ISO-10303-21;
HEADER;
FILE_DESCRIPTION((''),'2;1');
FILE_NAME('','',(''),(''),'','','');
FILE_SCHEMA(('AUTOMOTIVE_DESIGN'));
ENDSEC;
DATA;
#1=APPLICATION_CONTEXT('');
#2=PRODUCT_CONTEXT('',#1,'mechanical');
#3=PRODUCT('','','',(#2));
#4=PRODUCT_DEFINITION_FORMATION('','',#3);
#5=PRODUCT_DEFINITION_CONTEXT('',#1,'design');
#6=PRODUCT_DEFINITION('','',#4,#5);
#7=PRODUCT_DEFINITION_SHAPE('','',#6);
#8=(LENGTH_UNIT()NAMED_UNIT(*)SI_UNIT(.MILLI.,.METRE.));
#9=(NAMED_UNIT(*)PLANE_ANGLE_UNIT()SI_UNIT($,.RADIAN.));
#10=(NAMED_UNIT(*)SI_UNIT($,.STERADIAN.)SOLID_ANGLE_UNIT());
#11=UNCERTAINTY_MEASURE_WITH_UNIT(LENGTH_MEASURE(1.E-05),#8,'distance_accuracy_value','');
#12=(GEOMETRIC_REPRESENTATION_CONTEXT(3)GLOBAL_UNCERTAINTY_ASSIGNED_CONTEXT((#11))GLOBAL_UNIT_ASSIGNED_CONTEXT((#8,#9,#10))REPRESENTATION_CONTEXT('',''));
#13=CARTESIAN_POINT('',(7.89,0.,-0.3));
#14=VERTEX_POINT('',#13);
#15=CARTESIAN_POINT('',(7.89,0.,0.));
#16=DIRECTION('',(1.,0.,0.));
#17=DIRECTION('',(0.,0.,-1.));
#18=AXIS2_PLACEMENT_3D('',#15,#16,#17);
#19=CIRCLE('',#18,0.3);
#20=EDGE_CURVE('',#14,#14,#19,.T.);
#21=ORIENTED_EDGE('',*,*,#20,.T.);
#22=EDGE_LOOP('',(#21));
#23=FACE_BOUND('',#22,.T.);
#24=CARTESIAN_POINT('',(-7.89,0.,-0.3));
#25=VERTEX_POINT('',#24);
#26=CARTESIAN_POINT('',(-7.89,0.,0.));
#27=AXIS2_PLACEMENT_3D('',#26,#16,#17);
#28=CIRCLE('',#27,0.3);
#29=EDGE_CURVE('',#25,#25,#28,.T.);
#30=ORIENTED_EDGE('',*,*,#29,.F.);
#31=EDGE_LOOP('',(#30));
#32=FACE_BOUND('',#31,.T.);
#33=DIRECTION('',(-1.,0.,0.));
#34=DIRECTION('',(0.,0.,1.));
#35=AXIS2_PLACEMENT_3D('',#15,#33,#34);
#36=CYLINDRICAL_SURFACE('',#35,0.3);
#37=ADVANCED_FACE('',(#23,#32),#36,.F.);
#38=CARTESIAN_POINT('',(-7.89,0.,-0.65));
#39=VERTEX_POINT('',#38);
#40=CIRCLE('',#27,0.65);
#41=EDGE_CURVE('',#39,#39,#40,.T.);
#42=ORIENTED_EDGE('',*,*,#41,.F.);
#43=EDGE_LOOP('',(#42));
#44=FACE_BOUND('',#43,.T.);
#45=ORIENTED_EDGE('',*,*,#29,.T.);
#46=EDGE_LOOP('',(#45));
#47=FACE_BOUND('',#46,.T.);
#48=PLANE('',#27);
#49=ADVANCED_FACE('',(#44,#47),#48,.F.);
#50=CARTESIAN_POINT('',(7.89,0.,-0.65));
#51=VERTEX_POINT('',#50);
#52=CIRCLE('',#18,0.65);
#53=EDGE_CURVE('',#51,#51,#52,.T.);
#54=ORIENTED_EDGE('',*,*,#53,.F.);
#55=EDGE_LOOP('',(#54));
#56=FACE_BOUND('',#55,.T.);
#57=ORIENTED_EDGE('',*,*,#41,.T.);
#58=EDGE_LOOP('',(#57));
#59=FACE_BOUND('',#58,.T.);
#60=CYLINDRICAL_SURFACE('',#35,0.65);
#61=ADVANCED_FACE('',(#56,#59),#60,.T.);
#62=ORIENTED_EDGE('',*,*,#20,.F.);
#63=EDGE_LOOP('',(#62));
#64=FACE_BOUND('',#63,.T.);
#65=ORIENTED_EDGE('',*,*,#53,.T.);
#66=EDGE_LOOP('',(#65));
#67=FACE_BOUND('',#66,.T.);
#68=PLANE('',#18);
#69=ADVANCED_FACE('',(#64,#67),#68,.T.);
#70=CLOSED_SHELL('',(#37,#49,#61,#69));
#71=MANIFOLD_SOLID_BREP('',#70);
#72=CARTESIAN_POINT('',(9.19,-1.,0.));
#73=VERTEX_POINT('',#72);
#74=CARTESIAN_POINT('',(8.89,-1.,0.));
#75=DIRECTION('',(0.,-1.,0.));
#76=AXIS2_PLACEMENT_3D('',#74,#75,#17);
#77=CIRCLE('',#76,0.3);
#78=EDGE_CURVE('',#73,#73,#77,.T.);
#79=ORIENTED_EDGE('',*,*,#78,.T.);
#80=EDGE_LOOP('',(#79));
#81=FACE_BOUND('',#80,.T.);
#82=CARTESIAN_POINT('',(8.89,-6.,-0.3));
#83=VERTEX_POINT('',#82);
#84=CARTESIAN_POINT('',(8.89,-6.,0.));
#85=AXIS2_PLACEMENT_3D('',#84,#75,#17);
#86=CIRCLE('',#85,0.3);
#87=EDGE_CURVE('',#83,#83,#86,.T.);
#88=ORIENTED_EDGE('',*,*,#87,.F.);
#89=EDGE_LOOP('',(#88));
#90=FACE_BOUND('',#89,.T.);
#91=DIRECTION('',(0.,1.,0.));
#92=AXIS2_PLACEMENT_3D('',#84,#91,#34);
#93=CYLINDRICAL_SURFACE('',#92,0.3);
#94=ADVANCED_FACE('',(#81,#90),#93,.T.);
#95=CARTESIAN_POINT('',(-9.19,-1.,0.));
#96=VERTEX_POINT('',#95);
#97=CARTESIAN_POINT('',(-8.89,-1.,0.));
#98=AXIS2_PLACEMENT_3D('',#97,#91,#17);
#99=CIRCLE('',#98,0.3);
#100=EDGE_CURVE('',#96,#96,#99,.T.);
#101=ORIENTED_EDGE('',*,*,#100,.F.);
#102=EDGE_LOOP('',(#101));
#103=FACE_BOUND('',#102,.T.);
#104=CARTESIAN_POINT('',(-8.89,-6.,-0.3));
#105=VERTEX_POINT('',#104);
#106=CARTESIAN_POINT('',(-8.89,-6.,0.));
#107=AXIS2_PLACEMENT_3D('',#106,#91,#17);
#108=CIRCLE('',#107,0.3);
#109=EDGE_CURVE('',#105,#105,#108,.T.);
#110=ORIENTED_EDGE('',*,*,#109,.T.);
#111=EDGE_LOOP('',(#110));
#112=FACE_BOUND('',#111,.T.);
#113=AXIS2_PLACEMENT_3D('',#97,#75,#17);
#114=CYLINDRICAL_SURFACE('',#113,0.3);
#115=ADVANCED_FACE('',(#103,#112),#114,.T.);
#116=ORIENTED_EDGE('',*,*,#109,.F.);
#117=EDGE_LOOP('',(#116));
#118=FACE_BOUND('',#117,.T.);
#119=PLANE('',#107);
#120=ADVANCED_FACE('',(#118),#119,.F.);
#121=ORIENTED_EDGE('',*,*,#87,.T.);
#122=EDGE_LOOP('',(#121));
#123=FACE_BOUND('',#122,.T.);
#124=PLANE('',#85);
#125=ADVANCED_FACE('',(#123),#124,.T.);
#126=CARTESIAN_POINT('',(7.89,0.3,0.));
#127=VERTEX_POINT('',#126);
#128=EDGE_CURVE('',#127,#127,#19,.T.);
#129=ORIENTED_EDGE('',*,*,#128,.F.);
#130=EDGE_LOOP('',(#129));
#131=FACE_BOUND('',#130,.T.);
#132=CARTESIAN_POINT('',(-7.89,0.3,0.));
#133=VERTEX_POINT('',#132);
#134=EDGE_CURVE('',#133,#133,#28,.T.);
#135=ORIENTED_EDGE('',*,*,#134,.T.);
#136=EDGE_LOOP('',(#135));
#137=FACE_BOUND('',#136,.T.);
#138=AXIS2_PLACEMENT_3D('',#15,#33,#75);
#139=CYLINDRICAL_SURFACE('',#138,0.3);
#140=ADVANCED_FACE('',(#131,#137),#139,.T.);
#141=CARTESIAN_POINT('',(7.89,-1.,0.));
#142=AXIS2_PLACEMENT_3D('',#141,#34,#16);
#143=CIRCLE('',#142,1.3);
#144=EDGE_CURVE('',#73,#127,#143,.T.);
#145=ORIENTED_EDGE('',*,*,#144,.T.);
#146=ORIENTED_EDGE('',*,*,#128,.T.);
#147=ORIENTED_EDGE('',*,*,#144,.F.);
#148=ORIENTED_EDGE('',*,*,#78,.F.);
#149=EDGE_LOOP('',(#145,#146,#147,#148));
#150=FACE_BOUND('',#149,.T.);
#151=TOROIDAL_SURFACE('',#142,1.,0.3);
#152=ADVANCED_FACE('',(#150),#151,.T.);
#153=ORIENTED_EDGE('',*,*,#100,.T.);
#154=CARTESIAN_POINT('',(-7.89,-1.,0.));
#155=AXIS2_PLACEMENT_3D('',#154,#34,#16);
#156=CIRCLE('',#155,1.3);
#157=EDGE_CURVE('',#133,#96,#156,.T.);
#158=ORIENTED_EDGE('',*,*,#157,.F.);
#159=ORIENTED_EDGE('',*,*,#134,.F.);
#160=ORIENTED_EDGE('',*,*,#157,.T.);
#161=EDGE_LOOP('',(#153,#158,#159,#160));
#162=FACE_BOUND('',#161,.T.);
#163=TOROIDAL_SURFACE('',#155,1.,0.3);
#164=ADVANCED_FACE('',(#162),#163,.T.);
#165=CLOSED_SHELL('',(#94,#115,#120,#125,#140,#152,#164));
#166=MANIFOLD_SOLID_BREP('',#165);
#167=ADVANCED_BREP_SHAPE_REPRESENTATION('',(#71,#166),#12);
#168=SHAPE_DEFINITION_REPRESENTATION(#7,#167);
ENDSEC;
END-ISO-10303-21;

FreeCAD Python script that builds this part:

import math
import FreeCAD as App
import Part
import Sketcher

V = App.Vector

doc = App.newDocument("Part")
params = doc.addObject("Spreadsheet::Sheet", "Params")
for row, (alias, value) in enumerate([
    ("sketch1_diameter", "0.6 mm"),
    ("sketch2_radius", "1 mm"),
    ("sketch2_height", "5 mm"),
    ("sketch2_width", "15.78 mm"),
    ("sketch3_diameter", "1.3 mm"),
    ("sketch3_diameter2", "0.6 mm"),
    ("pad1_length", "7.89 mm"),
    ("pad1_length2", "7.89 mm"),
], start=1):
    params.set(f"A{row}", alias)
    params.set(f"B{row}", "=" + value)
    params.setAlias(f"B{row}", alias)

body = doc.addObject("PartDesign::Body", "Body")

# Sketch on YZ plane
sketch1 = body.newObject("Sketcher::SketchObject", "Sketch")
sketch1.AttachmentSupport = (doc.getObject("YZ_Plane"), [""])
sketch1.MapMode = "FlatFace"
sketch1.addGeometry(Part.Circle(V(0, 0, 0), V(0, 0, 1), 0.3), False)
sketch1.addConstraint(Sketcher.Constraint("Coincident", 0, 3, -1, 1))
sketch1.addConstraint(Sketcher.Constraint("Diameter", 0, 0.6))
sketch1.setExpression("Constraints[1]", "Params.sketch1_diameter")

# Sketch on XY plane
sketch2 = body.newObject("Sketcher::SketchObject", "Sketch001")
sketch2.AttachmentSupport = (doc.getObject("XY_Plane"), [""])
sketch2.MapMode = "FlatFace"
sketch2.addGeometry(Part.LineSegment(V(-8.9, -6, 0), V(-8.9, -1, 0)), False)
sketch2.addGeometry(Part.ArcOfCircle(Part.Circle(V(-7.9, -1, 0), V(0, 0, 1), 1), math.radians(90), math.radians(180)), False)
sketch2.addGeometry(Part.LineSegment(V(-7.9, 0, 0), V(7.9, 0, 0)), False)
sketch2.addGeometry(Part.ArcOfCircle(Part.Circle(V(7.9, -1, 0), V(0, 0, 1), 1), math.radians(0), math.radians(90)), False)
sketch2.addGeometry(Part.LineSegment(V(8.9, -1, 0), V(8.9, -6, 0)), False)
sketch2.addConstraint(Sketcher.Constraint("Tangent", 0, 2, 1, 2))
sketch2.addConstraint(Sketcher.Constraint("Tangent", 1, 1, 2, 1))
sketch2.addConstraint(Sketcher.Constraint("Tangent", 2, 2, 3, 2))
sketch2.addConstraint(Sketcher.Constraint("Tangent", 3, 1, 4, 1))
sketch2.addConstraint(Sketcher.Constraint("Vertical", 0))
sketch2.addConstraint(Sketcher.Constraint("Horizontal", 2))
sketch2.addConstraint(Sketcher.Constraint("Vertical", 4))
sketch2.addConstraint(Sketcher.Constraint("Equal", 1, 3))
sketch2.addConstraint(Sketcher.Constraint("Symmetric", 1, 1, 2, 2, -1, 1))
sketch2.addConstraint(Sketcher.Constraint("Horizontal", 0, 1, 4, 2))
sketch2.addConstraint(Sketcher.Constraint("Radius", 1, 1.0))
sketch2.addConstraint(Sketcher.Constraint("DistanceY", 0, 1, 0, 2, 5.0))
sketch2.addConstraint(Sketcher.Constraint("DistanceX", 2, 1, 2, 2, 15.78))
sketch2.setExpression("Constraints[10]", "Params.sketch2_radius")
sketch2.setExpression("Constraints[11]", "Params.sketch2_height")
sketch2.setExpression("Constraints[12]", "Params.sketch2_width")
doc.recompute()

additivepipe = body.newObject("PartDesign::AdditivePipe", "AdditivePipe")
additivepipe.Profile = sketch1
additivepipe.Spine = (sketch2, ["Edge1", "Edge2", "Edge3", "Edge4", "Edge5"])
body2 = doc.addObject("PartDesign::Body", "Body001")

# Sketch on YZ plane
sketch3 = body2.newObject("Sketcher::SketchObject", "Sketch002")
sketch3.AttachmentSupport = (doc.getObject("YZ_Plane001"), [""])
sketch3.MapMode = "FlatFace"
sketch3.addGeometry(Part.Circle(V(0, 0, 0), V(0, 0, 1), 0.65), False)
sketch3.addGeometry(Part.Circle(V(0, 0, 0), V(0, 0, 1), 0.3), False)
sketch3.addConstraint(Sketcher.Constraint("Coincident", 0, 3, -1, 1))
sketch3.addConstraint(Sketcher.Constraint("Coincident", 1, 3, -1, 1))
sketch3.addConstraint(Sketcher.Constraint("Diameter", 0, 1.3))
sketch3.addConstraint(Sketcher.Constraint("Diameter", 1, 0.6))
sketch3.setExpression("Constraints[2]", "Params.sketch3_diameter")
sketch3.setExpression("Constraints[3]", "Params.sketch3_diameter2")
pad1 = body2.newObject("PartDesign::Pad", "Pad")
pad1.Profile = sketch3
pad1.Type = "TwoLengths"
pad1.setExpression("Length", "Params.pad1_length")
pad1.setExpression("Length2", "Params.pad1_length2")

doc.recompute()
